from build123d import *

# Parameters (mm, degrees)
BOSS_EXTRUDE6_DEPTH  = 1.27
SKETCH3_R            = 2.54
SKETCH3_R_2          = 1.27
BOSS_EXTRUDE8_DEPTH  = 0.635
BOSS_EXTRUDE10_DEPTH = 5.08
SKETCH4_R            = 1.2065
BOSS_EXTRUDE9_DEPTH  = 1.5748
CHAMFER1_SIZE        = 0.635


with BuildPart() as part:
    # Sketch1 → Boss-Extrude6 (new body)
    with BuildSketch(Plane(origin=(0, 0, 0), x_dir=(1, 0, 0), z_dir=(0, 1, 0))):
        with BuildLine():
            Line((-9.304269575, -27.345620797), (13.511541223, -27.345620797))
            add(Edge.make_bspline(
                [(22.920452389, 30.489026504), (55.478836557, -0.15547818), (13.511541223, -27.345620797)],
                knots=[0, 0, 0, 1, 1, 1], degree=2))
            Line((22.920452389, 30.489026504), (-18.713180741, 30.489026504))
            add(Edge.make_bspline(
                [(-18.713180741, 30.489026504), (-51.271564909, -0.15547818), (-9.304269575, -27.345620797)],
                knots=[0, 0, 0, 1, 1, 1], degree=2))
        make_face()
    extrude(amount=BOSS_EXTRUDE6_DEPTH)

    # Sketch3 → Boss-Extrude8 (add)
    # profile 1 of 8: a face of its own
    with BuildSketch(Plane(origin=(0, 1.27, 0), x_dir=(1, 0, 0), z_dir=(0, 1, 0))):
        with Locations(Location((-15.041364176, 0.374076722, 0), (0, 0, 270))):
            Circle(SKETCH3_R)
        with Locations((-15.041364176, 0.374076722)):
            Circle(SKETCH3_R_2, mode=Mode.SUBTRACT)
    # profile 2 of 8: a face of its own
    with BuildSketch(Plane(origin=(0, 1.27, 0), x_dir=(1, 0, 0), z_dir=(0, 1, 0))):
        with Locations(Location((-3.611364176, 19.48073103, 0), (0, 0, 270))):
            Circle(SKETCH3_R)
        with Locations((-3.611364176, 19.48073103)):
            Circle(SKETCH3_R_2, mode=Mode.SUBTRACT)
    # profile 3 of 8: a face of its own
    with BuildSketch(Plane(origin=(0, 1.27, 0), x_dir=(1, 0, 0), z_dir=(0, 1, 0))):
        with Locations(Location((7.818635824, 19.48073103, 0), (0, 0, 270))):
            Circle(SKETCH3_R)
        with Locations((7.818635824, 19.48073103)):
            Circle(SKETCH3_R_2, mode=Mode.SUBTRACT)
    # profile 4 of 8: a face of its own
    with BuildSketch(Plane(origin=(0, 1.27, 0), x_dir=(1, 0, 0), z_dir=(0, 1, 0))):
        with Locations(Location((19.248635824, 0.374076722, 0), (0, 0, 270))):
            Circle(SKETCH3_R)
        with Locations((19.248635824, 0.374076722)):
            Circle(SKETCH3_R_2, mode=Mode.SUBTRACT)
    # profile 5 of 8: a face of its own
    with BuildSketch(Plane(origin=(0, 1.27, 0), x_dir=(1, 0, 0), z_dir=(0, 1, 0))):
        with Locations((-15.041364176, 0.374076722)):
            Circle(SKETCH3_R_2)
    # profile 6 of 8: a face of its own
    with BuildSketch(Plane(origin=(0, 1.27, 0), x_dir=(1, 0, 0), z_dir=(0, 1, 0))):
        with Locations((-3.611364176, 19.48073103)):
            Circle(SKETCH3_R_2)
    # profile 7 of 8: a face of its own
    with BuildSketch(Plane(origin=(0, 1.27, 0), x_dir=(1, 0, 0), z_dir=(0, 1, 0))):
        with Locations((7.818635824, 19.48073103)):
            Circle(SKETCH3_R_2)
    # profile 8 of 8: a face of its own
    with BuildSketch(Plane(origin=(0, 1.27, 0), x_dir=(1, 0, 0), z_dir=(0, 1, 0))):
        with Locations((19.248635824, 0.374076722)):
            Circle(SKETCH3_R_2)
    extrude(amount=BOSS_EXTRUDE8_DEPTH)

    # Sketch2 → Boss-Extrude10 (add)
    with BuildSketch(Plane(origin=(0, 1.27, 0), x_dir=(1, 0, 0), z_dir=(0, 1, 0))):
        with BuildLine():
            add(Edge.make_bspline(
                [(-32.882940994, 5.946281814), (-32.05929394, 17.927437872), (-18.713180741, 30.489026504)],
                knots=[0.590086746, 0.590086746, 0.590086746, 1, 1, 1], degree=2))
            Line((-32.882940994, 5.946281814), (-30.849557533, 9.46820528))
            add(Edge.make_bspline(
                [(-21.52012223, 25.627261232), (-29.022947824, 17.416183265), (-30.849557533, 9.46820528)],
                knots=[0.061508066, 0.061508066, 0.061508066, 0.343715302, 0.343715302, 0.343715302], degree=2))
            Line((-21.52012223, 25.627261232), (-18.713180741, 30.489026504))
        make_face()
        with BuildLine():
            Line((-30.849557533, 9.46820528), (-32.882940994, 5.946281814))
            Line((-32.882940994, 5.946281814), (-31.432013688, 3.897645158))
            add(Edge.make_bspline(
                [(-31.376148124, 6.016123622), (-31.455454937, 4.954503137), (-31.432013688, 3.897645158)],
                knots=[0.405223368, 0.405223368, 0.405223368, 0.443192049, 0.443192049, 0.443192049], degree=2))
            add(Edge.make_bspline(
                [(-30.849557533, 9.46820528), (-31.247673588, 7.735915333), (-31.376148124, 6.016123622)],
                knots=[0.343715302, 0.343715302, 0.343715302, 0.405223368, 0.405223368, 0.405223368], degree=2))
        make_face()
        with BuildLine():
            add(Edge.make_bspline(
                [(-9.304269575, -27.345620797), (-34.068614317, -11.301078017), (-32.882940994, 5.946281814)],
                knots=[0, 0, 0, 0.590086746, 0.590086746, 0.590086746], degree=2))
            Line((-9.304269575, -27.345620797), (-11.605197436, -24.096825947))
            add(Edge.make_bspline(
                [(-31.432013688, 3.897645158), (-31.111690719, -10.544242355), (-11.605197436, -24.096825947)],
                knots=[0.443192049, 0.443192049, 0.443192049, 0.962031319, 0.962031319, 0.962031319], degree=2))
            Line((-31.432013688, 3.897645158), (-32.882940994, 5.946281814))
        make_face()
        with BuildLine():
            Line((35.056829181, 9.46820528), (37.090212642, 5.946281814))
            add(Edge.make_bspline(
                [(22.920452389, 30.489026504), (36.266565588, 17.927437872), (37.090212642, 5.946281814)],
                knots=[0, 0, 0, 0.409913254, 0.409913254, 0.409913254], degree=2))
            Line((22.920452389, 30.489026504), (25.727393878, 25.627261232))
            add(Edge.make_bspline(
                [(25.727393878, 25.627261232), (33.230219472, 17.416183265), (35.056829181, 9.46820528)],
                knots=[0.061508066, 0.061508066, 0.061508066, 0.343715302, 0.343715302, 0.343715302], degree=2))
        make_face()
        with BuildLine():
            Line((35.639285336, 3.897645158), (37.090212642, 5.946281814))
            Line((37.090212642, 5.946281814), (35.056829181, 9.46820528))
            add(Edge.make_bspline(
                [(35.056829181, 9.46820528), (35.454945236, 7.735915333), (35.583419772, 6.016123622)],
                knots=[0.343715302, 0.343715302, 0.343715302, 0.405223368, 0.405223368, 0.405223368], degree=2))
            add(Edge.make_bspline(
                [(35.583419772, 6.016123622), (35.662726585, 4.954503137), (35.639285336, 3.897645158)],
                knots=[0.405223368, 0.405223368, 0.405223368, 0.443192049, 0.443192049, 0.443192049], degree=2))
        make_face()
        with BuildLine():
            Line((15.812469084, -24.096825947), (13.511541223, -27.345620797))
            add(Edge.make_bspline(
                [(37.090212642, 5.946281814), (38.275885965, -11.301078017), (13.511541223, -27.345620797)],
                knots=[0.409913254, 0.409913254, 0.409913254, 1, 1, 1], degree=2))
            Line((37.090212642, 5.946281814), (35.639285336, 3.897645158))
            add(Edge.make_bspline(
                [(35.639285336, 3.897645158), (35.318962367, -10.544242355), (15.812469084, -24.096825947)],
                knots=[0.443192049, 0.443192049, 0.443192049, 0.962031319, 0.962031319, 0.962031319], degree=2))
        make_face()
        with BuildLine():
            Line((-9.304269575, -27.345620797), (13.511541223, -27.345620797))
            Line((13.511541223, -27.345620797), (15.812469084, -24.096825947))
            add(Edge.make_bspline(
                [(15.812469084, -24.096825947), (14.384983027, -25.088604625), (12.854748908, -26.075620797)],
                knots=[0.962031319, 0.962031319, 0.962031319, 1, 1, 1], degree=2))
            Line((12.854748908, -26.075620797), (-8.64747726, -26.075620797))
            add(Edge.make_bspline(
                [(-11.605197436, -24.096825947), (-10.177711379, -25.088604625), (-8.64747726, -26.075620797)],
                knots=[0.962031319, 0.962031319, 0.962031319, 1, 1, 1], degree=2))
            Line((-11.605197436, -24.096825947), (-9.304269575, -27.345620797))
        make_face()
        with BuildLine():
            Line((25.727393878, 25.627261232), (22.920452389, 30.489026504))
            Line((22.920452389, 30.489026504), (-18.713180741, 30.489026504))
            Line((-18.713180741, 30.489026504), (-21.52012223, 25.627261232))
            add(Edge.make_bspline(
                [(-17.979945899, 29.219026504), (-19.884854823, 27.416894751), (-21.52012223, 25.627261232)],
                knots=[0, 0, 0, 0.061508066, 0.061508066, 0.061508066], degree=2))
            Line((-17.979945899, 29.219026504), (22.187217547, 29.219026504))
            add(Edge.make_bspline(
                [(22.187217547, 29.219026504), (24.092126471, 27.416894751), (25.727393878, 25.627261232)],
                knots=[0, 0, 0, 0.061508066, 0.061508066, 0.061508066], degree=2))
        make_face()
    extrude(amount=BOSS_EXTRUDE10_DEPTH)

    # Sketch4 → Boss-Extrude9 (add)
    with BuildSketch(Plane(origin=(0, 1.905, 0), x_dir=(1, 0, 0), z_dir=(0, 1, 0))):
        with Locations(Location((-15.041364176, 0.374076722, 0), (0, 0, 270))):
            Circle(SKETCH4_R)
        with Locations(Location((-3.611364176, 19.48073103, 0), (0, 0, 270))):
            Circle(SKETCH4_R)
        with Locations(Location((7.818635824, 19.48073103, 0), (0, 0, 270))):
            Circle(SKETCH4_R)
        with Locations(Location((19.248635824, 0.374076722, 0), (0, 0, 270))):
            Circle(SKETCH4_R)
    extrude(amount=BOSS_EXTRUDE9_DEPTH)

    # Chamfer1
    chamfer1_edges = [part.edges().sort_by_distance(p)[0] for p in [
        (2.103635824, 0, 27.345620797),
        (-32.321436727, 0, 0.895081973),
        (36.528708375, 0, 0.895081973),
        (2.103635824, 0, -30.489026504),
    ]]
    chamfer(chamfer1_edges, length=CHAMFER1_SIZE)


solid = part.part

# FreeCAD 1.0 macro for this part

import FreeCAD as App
import Part
import Sketcher
Q = App.Units.Quantity


def edges_at(feature, points):
    """Names of the edges that pass closest to the given points."""
    edges = feature.Shape.Edges
    near = lambda p: min(range(len(edges)), key=lambda i: edges[i].distToShape(Part.Vertex(*p))[0])
    return sorted({f"Edge{near(p) + 1}" for p in points})

doc = App.newDocument("Part")
body = doc.addObject("PartDesign::Body", "Body")

sketch1 = body.newObject("Sketcher::SketchObject", "Sketch")
sketch1.AttachmentSupport = (doc.getObject("XZ_Plane"), [""])
sketch1.MapMode = "FlatFace"
sketch1.addGeometry([
    Part.LineSegment(App.Vector(-9.30427, 27.345621, 0), App.Vector(13.511541, 27.345621, 0)),
    Part.BSplineCurve([App.Vector(22.920452, -30.489027, 0), App.Vector(55.478837, 0.155478, 0), App.Vector(13.511541, 27.345621, 0)], [3, 3], [0, 1], False, 2, [1, 1, 1], False),
    Part.LineSegment(App.Vector(22.920452, -30.489027, 0), App.Vector(-18.713181, -30.489027, 0)),
    Part.BSplineCurve([App.Vector(-18.713181, -30.489027, 0), App.Vector(-51.271565, 0.155478, 0), App.Vector(-9.30427, 27.345621, 0)], [3, 3], [0, 1], False, 2, [1, 1, 1], False),
], False)
sketch1.addConstraint([
    Sketcher.Constraint("Block", 1),
    Sketcher.Constraint("Block", 3),
    Sketcher.Constraint("Coincident", 0, 2, 1, 2),
    Sketcher.Constraint("Coincident", 1, 1, 2, 1),
    Sketcher.Constraint("Coincident", 2, 2, 3, 1),
    Sketcher.Constraint("Coincident", 3, 2, 0, 1),
])
pad1 = body.newObject("PartDesign::Pad", "Pad")
pad1.Profile = sketch1
pad1.Length = Q("0.05 in")
pad1.Reversed = True

sketch2 = body.newObject("Sketcher::SketchObject", "Sketch001")
sketch2.AttachmentSupport = (doc.getObject("XZ_Plane"), [""])
sketch2.MapMode = "FlatFace"
sketch2.AttachmentOffset = App.Placement(App.Vector(0, 0, -0.05 * 25.4), App.Rotation())
sketch2.addGeometry([
    Part.Circle(App.Vector(-15.041364, -0.374077, 0), App.Vector(0, 0, 1), 2.54),
    Part.Circle(App.Vector(-3.611364, -19.480731, 0), App.Vector(0, 0, 1), 2.54),
    Part.Circle(App.Vector(7.818636, -19.480731, 0), App.Vector(0, 0, 1), 2.54),
    Part.Circle(App.Vector(19.248636, -0.374077, 0), App.Vector(0, 0, 1), 2.54),
], False)
sketch2.addConstraint([
    Sketcher.Constraint("Equal", 0, 1),
    Sketcher.Constraint("Equal", 1, 2),
    Sketcher.Constraint("Equal", 2, 3),
    Sketcher.Constraint("Horizontal", 1, 3, 2, 3),
    Sketcher.Constraint("Horizontal", 0, 3, 3, 3),
    Sketcher.Constraint("Diameter", 0, Q("0.2 in")),
    Sketcher.Constraint("DistanceX", 0, 3, 2, 3, Q("0.9 in")),
    Sketcher.Constraint("DistanceX", 1, 3, 3, 3, Q("0.9 in")),
    Sketcher.Constraint("DistanceX", 0, 3, 1, 3, Q("0.45 in")),
    Sketcher.Constraint("DistanceY", 1, 3, -1, 1, 19.480731),
    Sketcher.Constraint("DistanceX", 0, 3, -1, 1, 15.041364),
    Sketcher.Constraint("DistanceY", 0, 3, -1, 1, 0.374077),
])
pad2 = body.newObject("PartDesign::Pad", "Pad001")
pad2.Profile = sketch2
pad2.Length = Q("0.025 in")
pad2.Reversed = True

sketch3 = body.newObject("Sketcher::SketchObject", "Sketch002")
sketch3.AttachmentSupport = (doc.getObject("XZ_Plane"), [""])
sketch3.MapMode = "FlatFace"
sketch3.AttachmentOffset = App.Placement(App.Vector(0, 0, -0.05 * 25.4), App.Rotation())
sketch3.addGeometry([
    Part.BSplineCurve([App.Vector(-32.882941, -5.946282, 0), App.Vector(-32.059294, -17.927438, 0), App.Vector(-18.713181, -30.489027, 0)], [3, 3], [0.590086746, 1], False, 2, [1, 1, 1], False),
    Part.BSplineCurve([App.Vector(-9.30427, 27.345621, 0), App.Vector(-34.068614, 11.301078, 0), App.Vector(-32.882941, -5.946282, 0)], [3, 3], [0, 0.590086746], False, 2, [1, 1, 1], False),
    Part.LineSegment(App.Vector(-9.30427, 27.345621, 0), App.Vector(13.511541, 27.345621, 0)),
    Part.BSplineCurve([App.Vector(37.090213, -5.946282, 0), App.Vector(38.275886, 11.301078, 0), App.Vector(13.511541, 27.345621, 0)], [3, 3], [0.409913254, 1], False, 2, [1, 1, 1], False),
    Part.BSplineCurve([App.Vector(22.920452, -30.489027, 0), App.Vector(36.266566, -17.927438, 0), App.Vector(37.090213, -5.946282, 0)], [3, 3], [0, 0.409913254], False, 2, [1, 1, 1], False),
    Part.LineSegment(App.Vector(22.920452, -30.489027, 0), App.Vector(-18.713181, -30.489027, 0)),
    Part.BSplineCurve([App.Vector(-21.520122, -25.627261, 0), App.Vector(-29.022948, -17.416183, 0), App.Vector(-30.849558, -9.468205, 0)], [3, 3], [0.061508066, 0.343715302], False, 2, [1, 1, 1], False),
    Part.BSplineCurve([App.Vector(-17.979946, -29.219027, 0), App.Vector(-19.884855, -27.416895, 0), App.Vector(-21.520122, -25.627261, 0)], [3, 3], [0, 0.061508066], False, 2, [1, 1, 1], False),
    Part.LineSegment(App.Vector(-17.979946, -29.219027, 0), App.Vector(22.187218, -29.219027, 0)),
    Part.BSplineCurve([App.Vector(22.187218, -29.219027, 0), App.Vector(24.092126, -27.416895, 0), App.Vector(25.727394, -25.627261, 0)], [3, 3], [0, 0.061508066], False, 2, [1, 1, 1], False),
    Part.BSplineCurve([App.Vector(25.727394, -25.627261, 0), App.Vector(33.230219, -17.416183, 0), App.Vector(35.056829, -9.468205, 0)], [3, 3], [0.061508066, 0.343715302], False, 2, [1, 1, 1], False),
    Part.BSplineCurve([App.Vector(35.056829, -9.468205, 0), App.Vector(35.454945, -7.735915, 0), App.Vector(35.58342, -6.016124, 0)], [3, 3], [0.343715302, 0.405223368], False, 2, [1, 1, 1], False),
    Part.BSplineCurve([App.Vector(35.58342, -6.016124, 0), App.Vector(35.662727, -4.954503, 0), App.Vector(35.639285, -3.897645, 0)], [3, 3], [0.405223368, 0.443192049], False, 2, [1, 1, 1], False),
    Part.BSplineCurve([App.Vector(35.639285, -3.897645, 0), App.Vector(35.318962, 10.544242, 0), App.Vector(15.812469, 24.096826, 0)], [3, 3], [0.443192049, 0.962031319], False, 2, [1, 1, 1], False),
    Part.BSplineCurve([App.Vector(15.812469, 24.096826, 0), App.Vector(14.384983, 25.088605, 0), App.Vector(12.854749, 26.075621, 0)], [3, 3], [0.962031319, 1], False, 2, [1, 1, 1], False),
    Part.LineSegment(App.Vector(12.854749, 26.075621, 0), App.Vector(-8.647477, 26.075621, 0)),
    Part.BSplineCurve([App.Vector(-11.605197, 24.096826, 0), App.Vector(-10.177711, 25.088605, 0), App.Vector(-8.647477, 26.075621, 0)], [3, 3], [0.962031319, 1], False, 2, [1, 1, 1], False),
    Part.BSplineCurve([App.Vector(-31.432014, -3.897645, 0), App.Vector(-31.111691, 10.544242, 0), App.Vector(-11.605197, 24.096826, 0)], [3, 3], [0.443192049, 0.962031319], False, 2, [1, 1, 1], False),
    Part.BSplineCurve([App.Vector(-31.376148, -6.016124, 0), App.Vector(-31.455455, -4.954503, 0), App.Vector(-31.432014, -3.897645, 0)], [3, 3], [0.405223368, 0.443192049], False, 2, [1, 1, 1], False),
    Part.BSplineCurve([App.Vector(-30.849558, -9.468205, 0), App.Vector(-31.247674, -7.735915, 0), App.Vector(-31.376148, -6.016124, 0)], [3, 3], [0.343715302, 0.405223368], False, 2, [1, 1, 1], False),
], False)
sketch3.addConstraint([
    Sketcher.Constraint("Block", 0),
    Sketcher.Constraint("Block", 1),
    Sketcher.Constraint("Block", 3),
    Sketcher.Constraint("Block", 4),
    Sketcher.Constraint("Block", 6),
    Sketcher.Constraint("Block", 7),
    Sketcher.Constraint("Block", 9),
    Sketcher.Constraint("Block", 10),
    Sketcher.Constraint("Block", 11),
    Sketcher.Constraint("Block", 12),
    Sketcher.Constraint("Block", 13),
    Sketcher.Constraint("Block", 14),
    Sketcher.Constraint("Block", 16),
    Sketcher.Constraint("Block", 17),
    Sketcher.Constraint("Block", 18),
    Sketcher.Constraint("Block", 19),
    Sketcher.Constraint("Coincident", 1, 1, 2, 1),
    Sketcher.Constraint("Coincident", 2, 2, 3, 2),
    Sketcher.Constraint("Coincident", 4, 1, 5, 1),
    Sketcher.Constraint("Coincident", 5, 2, 0, 2),
    Sketcher.Constraint("Coincident", 7, 1, 8, 1),
    Sketcher.Constraint("Coincident", 8, 2, 9, 1),
    Sketcher.Constraint("Coincident", 14, 2, 15, 1),
    Sketcher.Constraint("Coincident", 15, 2, 16, 2),
])
pad3 = body.newObject("PartDesign::Pad", "Pad002")
pad3.Profile = sketch3
pad3.Length = Q("0.2 in")
pad3.Reversed = True

sketch4 = body.newObject("Sketcher::SketchObject", "Sketch003")
sketch4.AttachmentSupport = (doc.getObject("XZ_Plane"), [""])
sketch4.MapMode = "FlatFace"
sketch4.AttachmentOffset = App.Placement(App.Vector(0, 0, -0.075 * 25.4), App.Rotation())
sketch4.addGeometry([
    Part.Circle(App.Vector(-15.041364, -0.374077, 0), App.Vector(0, 0, 1), 1.2065),
    Part.Circle(App.Vector(-3.611364, -19.480731, 0), App.Vector(0, 0, 1), 1.2065),
    Part.Circle(App.Vector(7.818636, -19.480731, 0), App.Vector(0, 0, 1), 1.2065),
    Part.Circle(App.Vector(19.248636, -0.374077, 0), App.Vector(0, 0, 1), 1.2065),
], False)
sketch4.addConstraint([
    Sketcher.Constraint("Equal", 0, 1),
    Sketcher.Constraint("Equal", 1, 2),
    Sketcher.Constraint("Equal", 2, 3),
    Sketcher.Constraint("Horizontal", 1, 3, 2, 3),
    Sketcher.Constraint("Horizontal", 0, 3, 3, 3),
    Sketcher.Constraint("Diameter", 0, Q("0.095 in")),
    Sketcher.Constraint("DistanceX", 0, 3, 2, 3, Q("0.9 in")),
    Sketcher.Constraint("DistanceX", 1, 3, 3, 3, Q("0.9 in")),
    Sketcher.Constraint("DistanceX", 0, 3, 1, 3, Q("0.45 in")),
    Sketcher.Constraint("DistanceY", 1, 3, -1, 1, 19.480731),
    Sketcher.Constraint("DistanceX", 0, 3, -1, 1, 15.041364),
    Sketcher.Constraint("DistanceY", 0, 3, -1, 1, 0.374077),
])
pad4 = body.newObject("PartDesign::Pad", "Pad003")
pad4.Profile = sketch4
pad4.Length = Q("0.062 in")
pad4.Reversed = True
doc.recompute()

chamfer = body.newObject("PartDesign::Chamfer", "Chamfer")
chamfer.Base = (pad4, edges_at(pad4, [
    (2.104, 0, 27.346),
    (-32.321, 0, 0.895),
    (36.529, 0, 0.895),
    (2.104, 0, -30.489),
]))
chamfer.Size = Q("0.025 in")

doc.recompute()
